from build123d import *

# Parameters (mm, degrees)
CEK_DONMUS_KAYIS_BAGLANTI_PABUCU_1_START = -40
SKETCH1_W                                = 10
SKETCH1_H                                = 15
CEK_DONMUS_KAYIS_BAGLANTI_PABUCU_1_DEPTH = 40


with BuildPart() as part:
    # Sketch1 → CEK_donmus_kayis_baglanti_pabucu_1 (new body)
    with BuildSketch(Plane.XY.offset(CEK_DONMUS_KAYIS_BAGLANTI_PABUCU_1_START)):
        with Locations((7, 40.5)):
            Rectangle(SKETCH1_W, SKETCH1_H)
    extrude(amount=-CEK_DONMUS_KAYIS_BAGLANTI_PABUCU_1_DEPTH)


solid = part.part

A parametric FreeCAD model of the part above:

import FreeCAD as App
import Part
import Sketcher
from FreeCAD import Vector

doc = App.newDocument("Part")
body = doc.addObject("PartDesign::Body", "Body")

sketch1 = body.newObject("Sketcher::SketchObject", "Sketch")
sketch1.AttachmentSupport = (doc.getObject("XY_Plane"), [""])
sketch1.MapMode = "FlatFace"
sketch1.AttachmentOffset = App.Placement(Vector(0, 0, -40), App.Rotation())
sketch1.addGeometry([
    Part.LineSegment(Vector(2, 48, 0), Vector(2, 33, 0)),
    Part.LineSegment(Vector(2, 33, 0), Vector(12, 33, 0)),
    Part.LineSegment(Vector(12, 33, 0), Vector(12, 48, 0)),
    Part.LineSegment(Vector(12, 48, 0), Vector(2, 48, 0)),
], False)
sketch1.addConstraint([
    Sketcher.Constraint("Coincident", 0, 2, 1, 1),
    Sketcher.Constraint("Coincident", 1, 2, 2, 1),
    Sketcher.Constraint("Coincident", 2, 2, 3, 1),
    Sketcher.Constraint("Coincident", 3, 2, 0, 1),
    Sketcher.Constraint("Vertical", 0),
    Sketcher.Constraint("Horizontal", 1),
    Sketcher.Constraint("Vertical", 2),
    Sketcher.Constraint("Horizontal", 3),
    Sketcher.Constraint("DistanceX", 1, 1, 1, 2, 10.0),
    Sketcher.Constraint("DistanceY", 0, 2, 0, 1, 15.0),
    Sketcher.Constraint("DistanceX", -1, 1, 0, 2, 2.0),
    Sketcher.Constraint("DistanceY", -1, 1, 0, 2, 33.0),
])
pad1 = body.newObject("PartDesign::Pad", "Pad")
pad1.Profile = sketch1
pad1.Length = 40
pad1.Reversed = True

doc.recompute()
